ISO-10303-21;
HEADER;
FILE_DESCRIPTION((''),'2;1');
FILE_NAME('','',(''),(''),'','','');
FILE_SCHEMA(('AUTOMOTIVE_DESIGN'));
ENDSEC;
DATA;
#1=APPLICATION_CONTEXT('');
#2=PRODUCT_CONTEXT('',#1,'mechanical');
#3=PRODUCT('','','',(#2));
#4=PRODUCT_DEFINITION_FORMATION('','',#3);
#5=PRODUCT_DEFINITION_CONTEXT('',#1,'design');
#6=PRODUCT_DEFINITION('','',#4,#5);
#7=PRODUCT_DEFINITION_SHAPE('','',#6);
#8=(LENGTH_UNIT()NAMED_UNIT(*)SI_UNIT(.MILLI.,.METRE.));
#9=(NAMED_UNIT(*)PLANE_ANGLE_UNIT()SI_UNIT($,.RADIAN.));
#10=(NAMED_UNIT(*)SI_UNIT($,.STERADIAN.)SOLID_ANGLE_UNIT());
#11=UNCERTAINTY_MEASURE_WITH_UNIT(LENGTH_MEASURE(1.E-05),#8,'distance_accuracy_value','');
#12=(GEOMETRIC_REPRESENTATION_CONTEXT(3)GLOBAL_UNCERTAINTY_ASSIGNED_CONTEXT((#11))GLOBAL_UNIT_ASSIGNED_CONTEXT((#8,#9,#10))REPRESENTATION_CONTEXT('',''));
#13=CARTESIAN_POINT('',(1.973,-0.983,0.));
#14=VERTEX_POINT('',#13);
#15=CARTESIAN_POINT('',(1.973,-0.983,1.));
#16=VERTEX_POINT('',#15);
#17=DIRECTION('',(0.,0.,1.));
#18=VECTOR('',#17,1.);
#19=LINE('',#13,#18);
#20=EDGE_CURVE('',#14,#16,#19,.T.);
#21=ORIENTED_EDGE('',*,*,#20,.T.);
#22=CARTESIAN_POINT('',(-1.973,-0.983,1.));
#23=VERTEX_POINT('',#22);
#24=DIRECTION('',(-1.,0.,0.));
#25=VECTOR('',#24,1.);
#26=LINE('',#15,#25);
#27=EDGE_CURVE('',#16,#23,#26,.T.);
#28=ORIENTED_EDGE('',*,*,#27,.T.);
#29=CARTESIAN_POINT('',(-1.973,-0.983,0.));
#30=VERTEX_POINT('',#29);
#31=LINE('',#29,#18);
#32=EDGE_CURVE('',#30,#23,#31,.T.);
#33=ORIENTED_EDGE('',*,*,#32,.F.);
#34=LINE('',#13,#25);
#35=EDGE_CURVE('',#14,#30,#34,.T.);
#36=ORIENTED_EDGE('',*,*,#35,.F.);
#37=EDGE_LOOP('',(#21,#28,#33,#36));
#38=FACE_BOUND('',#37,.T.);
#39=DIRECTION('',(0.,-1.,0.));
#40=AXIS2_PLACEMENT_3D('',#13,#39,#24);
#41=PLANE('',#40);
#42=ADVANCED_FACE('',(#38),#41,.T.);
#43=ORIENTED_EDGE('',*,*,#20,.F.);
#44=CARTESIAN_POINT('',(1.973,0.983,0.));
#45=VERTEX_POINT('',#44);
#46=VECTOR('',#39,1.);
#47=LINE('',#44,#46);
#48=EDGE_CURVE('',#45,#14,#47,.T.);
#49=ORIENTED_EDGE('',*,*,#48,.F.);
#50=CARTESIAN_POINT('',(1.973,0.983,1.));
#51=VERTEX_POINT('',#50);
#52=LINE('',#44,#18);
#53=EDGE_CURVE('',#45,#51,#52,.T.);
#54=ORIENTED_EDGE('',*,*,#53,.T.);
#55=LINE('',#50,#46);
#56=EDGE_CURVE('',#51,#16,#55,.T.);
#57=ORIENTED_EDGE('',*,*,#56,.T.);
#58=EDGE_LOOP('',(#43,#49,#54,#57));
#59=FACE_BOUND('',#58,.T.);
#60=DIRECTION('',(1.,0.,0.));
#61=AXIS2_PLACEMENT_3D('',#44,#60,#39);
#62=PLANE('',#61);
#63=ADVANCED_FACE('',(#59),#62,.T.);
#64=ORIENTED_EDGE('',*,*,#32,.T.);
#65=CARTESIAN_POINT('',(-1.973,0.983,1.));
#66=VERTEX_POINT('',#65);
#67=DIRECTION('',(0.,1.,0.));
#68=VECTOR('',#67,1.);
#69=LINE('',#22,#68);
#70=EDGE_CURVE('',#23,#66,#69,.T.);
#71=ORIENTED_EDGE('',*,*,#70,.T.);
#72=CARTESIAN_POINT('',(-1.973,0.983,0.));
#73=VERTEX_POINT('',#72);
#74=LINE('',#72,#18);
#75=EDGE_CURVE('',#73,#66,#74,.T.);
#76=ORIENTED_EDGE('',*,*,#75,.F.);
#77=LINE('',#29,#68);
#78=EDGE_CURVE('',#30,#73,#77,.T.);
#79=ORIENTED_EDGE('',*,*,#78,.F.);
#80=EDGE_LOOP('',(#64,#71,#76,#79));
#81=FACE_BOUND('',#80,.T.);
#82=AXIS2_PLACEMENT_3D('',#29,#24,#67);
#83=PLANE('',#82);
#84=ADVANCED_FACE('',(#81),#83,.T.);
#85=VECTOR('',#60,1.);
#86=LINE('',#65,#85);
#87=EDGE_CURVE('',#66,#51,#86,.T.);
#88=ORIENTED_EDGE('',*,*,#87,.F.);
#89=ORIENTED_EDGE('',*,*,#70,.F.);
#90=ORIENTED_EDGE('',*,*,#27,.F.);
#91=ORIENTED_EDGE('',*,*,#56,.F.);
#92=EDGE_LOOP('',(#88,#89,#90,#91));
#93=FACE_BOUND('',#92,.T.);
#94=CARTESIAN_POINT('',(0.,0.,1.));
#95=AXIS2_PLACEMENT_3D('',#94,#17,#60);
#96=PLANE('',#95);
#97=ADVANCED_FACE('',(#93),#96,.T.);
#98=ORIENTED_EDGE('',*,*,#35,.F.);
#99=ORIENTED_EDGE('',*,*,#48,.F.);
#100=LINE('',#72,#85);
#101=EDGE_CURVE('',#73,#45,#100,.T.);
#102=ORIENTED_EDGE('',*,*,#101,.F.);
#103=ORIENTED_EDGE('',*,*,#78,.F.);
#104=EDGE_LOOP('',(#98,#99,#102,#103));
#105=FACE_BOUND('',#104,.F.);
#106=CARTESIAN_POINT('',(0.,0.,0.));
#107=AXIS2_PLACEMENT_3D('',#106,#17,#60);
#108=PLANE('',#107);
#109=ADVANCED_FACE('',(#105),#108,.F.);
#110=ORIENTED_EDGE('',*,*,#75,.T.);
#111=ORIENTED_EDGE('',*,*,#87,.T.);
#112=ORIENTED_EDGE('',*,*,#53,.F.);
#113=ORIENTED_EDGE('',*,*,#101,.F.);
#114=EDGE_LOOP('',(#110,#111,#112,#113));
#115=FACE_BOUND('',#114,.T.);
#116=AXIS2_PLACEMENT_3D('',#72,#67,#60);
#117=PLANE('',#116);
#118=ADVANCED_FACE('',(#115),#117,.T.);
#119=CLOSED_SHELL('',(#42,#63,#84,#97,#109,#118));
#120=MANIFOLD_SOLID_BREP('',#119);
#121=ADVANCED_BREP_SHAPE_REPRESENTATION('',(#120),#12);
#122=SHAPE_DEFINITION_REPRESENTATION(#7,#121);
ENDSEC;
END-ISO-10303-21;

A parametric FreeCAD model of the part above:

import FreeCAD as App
import Part
import Sketcher

V = App.Vector
Q = App.Units.Quantity


def add_polygon(sketch, points):
    """Adds a closed chain of lines whose ends are joined by coincident constraints."""
    first, n = sketch.GeometryCount, len(points)
    for a, b in zip(points, points[1:] + points[:1]):
        sketch.addGeometry(Part.LineSegment(App.Vector(*a, 0), App.Vector(*b, 0)), False)
    for i in range(n):
        sketch.addConstraint(Sketcher.Constraint("Coincident", first + i, 2, first + (i + 1) % n, 1))

doc = App.newDocument("Part")
body = doc.addObject("PartDesign::Body", "Body")

# Sketch on XY plane
sketch1 = body.newObject("Sketcher::SketchObject", "Sketch")
sketch1.AttachmentSupport = (doc.getObject("XY_Plane"), [""])
sketch1.MapMode = "FlatFace"
add_polygon(sketch1, [(2, 1), (-2, 1), (-2, -1), (2, -1)])  # lines 0-3
sketch1.addConstraint([
    Sketcher.Constraint("Horizontal", 0),
    Sketcher.Constraint("Vertical", 1),
    Sketcher.Constraint("Horizontal", 2),
    Sketcher.Constraint("Vertical", 3),
    Sketcher.Constraint("Symmetric", 0, 2, 2, 2, -1, 1),
    Sketcher.Constraint("DistanceX", 0, 2, 0, 1, Q("3.946 mm")),
    Sketcher.Constraint("DistanceY", 1, 2, 1, 1, Q("1.966 mm")),
])
pad1 = body.newObject("PartDesign::Pad", "Pad")
pad1.Profile = sketch1
pad1.Length = 1

doc.recompute()
